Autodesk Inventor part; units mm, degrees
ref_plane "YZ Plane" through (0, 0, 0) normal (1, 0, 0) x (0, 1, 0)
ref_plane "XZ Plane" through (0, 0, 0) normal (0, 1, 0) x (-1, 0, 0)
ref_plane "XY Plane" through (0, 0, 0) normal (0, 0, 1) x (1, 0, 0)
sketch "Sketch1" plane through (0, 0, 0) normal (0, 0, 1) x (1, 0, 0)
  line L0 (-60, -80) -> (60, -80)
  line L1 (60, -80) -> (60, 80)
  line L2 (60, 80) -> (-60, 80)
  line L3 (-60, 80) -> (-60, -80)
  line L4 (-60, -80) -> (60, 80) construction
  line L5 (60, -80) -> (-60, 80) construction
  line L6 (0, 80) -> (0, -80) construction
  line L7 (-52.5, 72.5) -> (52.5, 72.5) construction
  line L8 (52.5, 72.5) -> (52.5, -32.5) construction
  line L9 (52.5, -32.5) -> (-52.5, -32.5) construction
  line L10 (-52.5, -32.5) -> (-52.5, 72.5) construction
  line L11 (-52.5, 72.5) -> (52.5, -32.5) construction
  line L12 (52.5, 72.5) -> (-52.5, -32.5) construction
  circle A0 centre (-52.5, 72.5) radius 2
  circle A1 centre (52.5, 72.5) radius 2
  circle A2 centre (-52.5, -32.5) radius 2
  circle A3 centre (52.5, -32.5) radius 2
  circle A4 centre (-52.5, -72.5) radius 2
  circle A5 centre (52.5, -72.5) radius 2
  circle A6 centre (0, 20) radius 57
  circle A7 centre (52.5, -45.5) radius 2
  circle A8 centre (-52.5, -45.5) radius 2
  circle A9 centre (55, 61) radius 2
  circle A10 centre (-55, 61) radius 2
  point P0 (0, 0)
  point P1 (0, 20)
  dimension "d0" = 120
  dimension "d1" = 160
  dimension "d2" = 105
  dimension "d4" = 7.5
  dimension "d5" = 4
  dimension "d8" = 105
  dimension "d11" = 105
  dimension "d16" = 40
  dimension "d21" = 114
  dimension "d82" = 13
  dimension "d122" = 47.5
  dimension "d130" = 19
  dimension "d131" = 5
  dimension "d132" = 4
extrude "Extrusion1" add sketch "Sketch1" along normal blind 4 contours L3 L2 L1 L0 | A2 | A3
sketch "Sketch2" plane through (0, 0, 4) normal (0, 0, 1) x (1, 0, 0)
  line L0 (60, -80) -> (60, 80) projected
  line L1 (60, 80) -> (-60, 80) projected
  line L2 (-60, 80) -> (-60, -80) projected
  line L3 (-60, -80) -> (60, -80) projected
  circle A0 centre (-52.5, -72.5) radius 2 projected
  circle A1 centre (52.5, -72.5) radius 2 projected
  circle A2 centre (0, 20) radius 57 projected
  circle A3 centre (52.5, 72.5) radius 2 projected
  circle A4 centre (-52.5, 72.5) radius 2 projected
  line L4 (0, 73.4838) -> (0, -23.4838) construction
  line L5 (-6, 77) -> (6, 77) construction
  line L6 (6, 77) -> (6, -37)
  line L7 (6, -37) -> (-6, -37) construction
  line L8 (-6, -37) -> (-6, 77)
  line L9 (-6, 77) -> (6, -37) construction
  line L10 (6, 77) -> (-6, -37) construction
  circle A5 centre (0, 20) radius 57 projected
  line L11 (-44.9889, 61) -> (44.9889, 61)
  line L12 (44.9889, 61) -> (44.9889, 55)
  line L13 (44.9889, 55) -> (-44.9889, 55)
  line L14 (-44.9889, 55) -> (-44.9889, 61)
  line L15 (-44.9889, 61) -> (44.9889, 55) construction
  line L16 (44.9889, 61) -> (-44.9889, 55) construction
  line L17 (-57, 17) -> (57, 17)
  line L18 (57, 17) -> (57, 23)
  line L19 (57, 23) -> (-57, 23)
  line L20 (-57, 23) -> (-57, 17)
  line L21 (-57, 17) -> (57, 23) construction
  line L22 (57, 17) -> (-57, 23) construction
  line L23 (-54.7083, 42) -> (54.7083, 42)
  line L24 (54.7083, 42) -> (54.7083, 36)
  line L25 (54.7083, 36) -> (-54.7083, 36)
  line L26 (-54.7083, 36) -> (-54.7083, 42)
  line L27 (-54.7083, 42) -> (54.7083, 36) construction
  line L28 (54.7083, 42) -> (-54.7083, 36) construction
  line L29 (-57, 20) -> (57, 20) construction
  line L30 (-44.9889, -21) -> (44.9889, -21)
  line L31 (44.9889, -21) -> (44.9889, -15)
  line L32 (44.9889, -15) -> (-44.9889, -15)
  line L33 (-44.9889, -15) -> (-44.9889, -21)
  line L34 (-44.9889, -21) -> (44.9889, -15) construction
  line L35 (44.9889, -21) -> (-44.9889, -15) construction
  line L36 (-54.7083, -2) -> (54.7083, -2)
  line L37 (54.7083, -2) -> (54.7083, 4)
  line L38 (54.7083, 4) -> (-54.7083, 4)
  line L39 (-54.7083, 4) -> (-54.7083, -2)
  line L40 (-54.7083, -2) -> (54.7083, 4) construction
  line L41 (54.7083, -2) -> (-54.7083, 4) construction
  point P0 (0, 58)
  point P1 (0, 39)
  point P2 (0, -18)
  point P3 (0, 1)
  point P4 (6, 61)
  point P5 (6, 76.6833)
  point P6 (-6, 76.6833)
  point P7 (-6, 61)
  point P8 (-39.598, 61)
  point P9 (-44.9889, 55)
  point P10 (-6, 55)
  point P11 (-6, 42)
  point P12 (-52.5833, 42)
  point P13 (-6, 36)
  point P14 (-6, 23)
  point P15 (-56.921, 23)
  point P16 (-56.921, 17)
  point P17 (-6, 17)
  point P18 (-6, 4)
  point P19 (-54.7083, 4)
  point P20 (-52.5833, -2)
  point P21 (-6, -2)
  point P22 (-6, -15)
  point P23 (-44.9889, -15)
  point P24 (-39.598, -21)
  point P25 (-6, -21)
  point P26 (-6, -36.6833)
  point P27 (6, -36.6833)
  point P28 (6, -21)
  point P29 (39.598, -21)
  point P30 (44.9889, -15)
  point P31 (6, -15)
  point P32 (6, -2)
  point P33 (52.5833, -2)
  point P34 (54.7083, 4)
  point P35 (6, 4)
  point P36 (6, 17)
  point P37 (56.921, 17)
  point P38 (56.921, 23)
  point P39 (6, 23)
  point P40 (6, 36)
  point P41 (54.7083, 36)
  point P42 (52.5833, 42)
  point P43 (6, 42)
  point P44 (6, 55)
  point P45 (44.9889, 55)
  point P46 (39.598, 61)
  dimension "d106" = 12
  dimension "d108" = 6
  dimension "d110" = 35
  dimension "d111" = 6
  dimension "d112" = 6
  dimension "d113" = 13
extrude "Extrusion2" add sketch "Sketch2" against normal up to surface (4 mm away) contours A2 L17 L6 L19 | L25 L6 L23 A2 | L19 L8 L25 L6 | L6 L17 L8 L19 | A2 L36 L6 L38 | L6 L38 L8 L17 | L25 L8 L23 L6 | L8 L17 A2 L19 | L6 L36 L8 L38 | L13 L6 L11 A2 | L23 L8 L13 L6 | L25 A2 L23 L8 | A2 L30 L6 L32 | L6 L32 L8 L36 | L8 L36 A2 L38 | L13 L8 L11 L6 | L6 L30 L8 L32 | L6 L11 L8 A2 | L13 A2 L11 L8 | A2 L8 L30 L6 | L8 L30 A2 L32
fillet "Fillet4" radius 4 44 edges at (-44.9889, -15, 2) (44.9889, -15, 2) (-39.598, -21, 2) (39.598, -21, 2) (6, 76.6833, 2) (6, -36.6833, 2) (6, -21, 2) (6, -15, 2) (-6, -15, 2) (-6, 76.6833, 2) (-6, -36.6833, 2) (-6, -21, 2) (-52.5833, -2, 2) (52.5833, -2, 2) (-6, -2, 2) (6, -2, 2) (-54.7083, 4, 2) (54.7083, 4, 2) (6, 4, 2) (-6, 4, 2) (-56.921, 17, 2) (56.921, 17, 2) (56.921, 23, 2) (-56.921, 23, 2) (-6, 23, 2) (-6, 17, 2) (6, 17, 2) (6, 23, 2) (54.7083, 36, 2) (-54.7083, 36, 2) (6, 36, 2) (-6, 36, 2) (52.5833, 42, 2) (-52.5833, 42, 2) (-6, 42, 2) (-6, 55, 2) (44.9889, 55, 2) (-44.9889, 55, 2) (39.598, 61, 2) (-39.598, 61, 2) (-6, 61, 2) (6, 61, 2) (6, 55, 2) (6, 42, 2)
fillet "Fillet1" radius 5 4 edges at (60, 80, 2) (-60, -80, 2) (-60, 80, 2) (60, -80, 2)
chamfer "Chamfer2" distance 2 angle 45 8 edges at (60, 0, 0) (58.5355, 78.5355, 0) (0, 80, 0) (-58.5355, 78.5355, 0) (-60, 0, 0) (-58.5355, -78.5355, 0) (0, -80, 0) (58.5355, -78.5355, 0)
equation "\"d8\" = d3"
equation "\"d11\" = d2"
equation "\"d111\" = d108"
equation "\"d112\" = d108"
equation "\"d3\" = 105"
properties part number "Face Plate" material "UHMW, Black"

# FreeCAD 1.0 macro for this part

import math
import FreeCAD as App
import Part
import Sketcher


def edges_at(feature, points):
    """Names of the edges that pass closest to the given points."""
    edges = feature.Shape.Edges
    near = lambda p: min(range(len(edges)), key=lambda i: edges[i].distToShape(Part.Vertex(*p))[0])
    return sorted({f"Edge{near(p) + 1}" for p in points})

doc = App.newDocument("Part")
body = doc.addObject("PartDesign::Body", "Body")

sketch1 = body.newObject("Sketcher::SketchObject", "Sketch")
sketch1.AttachmentSupport = (doc.getObject("XY_Plane"), [""])
sketch1.MapMode = "FlatFace"
sketch1.addGeometry([
    Part.LineSegment(App.Vector(-60, 80, 0), App.Vector(-60, -80, 0)),
    Part.LineSegment(App.Vector(-60, -80, 0), App.Vector(60, -80, 0)),
    Part.LineSegment(App.Vector(60, -80, 0), App.Vector(60, 80, 0)),
    Part.LineSegment(App.Vector(60, 80, 0), App.Vector(-60, 80, 0)),
    Part.Circle(App.Vector(-52.5, -72.5, 0), App.Vector(0, 0, 1), 2),
    Part.Circle(App.Vector(-52.5, -45.5, 0), App.Vector(0, 0, 1), 2),
    Part.Circle(App.Vector(52.5, -72.5, 0), App.Vector(0, 0, 1), 2),
    Part.Circle(App.Vector(52.5, -45.5, 0), App.Vector(0, 0, 1), 2),
    Part.Circle(App.Vector(-55, 61, 0), App.Vector(0, 0, 1), 2),
    Part.Circle(App.Vector(-52.5, 72.5, 0), App.Vector(0, 0, 1), 2),
    Part.Circle(App.Vector(0, 20, 0), App.Vector(0, 0, 1), 57),
    Part.Circle(App.Vector(55, 61, 0), App.Vector(0, 0, 1), 2),
    Part.Circle(App.Vector(52.5, 72.5, 0), App.Vector(0, 0, 1), 2),
], False)
sketch1.addConstraint([
    Sketcher.Constraint("Coincident", 0, 2, 1, 1),
    Sketcher.Constraint("Coincident", 1, 2, 2, 1),
    Sketcher.Constraint("Coincident", 2, 2, 3, 1),
    Sketcher.Constraint("Coincident", 3, 2, 0, 1),
    Sketcher.Constraint("Vertical", 0),
    Sketcher.Constraint("Horizontal", 1),
    Sketcher.Constraint("Vertical", 2),
    Sketcher.Constraint("Horizontal", 3),
    Sketcher.Constraint("Equal", 4, 5),
    Sketcher.Constraint("Equal", 5, 6),
    Sketcher.Constraint("Equal", 6, 7),
    Sketcher.Constraint("Equal", 7, 8),
    Sketcher.Constraint("Equal", 8, 9),
    Sketcher.Constraint("Equal", 9, 11),
    Sketcher.Constraint("Equal", 11, 12),
    Sketcher.Constraint("Symmetric", 6, 3, 9, 3, -1, 1),
    Sketcher.Constraint("Symmetric", 4, 3, 12, 3, -1, 1),
    Sketcher.Constraint("Symmetric", 0, 2, 2, 2, -1, 1),
    Sketcher.Constraint("Symmetric", 4, 3, 6, 3, -2),
    Sketcher.Constraint("Symmetric", 5, 3, 7, 3, -2),
    Sketcher.Constraint("Symmetric", 8, 3, 11, 3, -2),
    Sketcher.Constraint("PointOnObject", 10, 3, -2),
    Sketcher.Constraint("Vertical", 4, 3, 5, 3),
    Sketcher.Constraint("Diameter", 4, 4.0),
    Sketcher.Constraint("Diameter", 10, 114.0),
    Sketcher.Constraint("DistanceX", 1, 1, 1, 2, 120.0),
    Sketcher.Constraint("DistanceY", 0, 2, 0, 1, 160.0),
    Sketcher.Constraint("DistanceX", 4, 3, 6, 3, 105.0),
    Sketcher.Constraint("DistanceX", 11, 3, 2, 2, 5.0),
    Sketcher.Constraint("DistanceY", 11, 3, 2, 2, 19.0),
    Sketcher.Constraint("DistanceY", 0, 2, 4, 3, 7.5),
    Sketcher.Constraint("DistanceY", -1, 1, 10, 3, 20.0),
    Sketcher.Constraint("DistanceY", 4, 3, 5, 3, 27.0),
])
pad1 = body.newObject("PartDesign::Pad", "Pad")
pad1.Profile = sketch1
pad1.Length = 4

sketch2 = body.newObject("Sketcher::SketchObject", "Sketch001")
sketch2.AttachmentSupport = (doc.getObject("XY_Plane"), [""])
sketch2.MapMode = "FlatFace"
sketch2.AttachmentOffset = App.Placement(App.Vector(0, 0, 4), App.Rotation())
sketch2.addGeometry([
    Part.ArcOfCircle(Part.Circle(App.Vector(0, 20, 0), App.Vector(0, 0, 1), 57), math.radians(-3.016961), math.radians(3.016961)),
    Part.LineSegment(App.Vector(56.920998, 23, 0), App.Vector(6, 23, 0)),
    Part.LineSegment(App.Vector(6, 23, 0), App.Vector(6, 36, 0)),
    Part.LineSegment(App.Vector(6, 36, 0), App.Vector(54.7083, 36, 0)),
    Part.ArcOfCircle(Part.Circle(App.Vector(0, 20, 0), App.Vector(0, 0, 1), 57), math.radians(16.302097), math.radians(22.703656)),
    Part.LineSegment(App.Vector(52.583267, 42, 0), App.Vector(6, 42, 0)),
    Part.LineSegment(App.Vector(6, 42, 0), App.Vector(6, 55, 0)),
    Part.LineSegment(App.Vector(6, 55, 0), App.Vector(44.9889, 55, 0)),
    Part.ArcOfCircle(Part.Circle(App.Vector(0, 20, 0), App.Vector(0, 0, 1), 57), math.radians(37.881834), math.radians(45.996573)),
    Part.LineSegment(App.Vector(39.59798, 61, 0), App.Vector(6, 61, 0)),
    Part.LineSegment(App.Vector(6, 61, 0), App.Vector(6, 76.683331, 0)),
    Part.ArcOfCircle(Part.Circle(App.Vector(0, 20, 0), App.Vector(0, 0, 1), 57), math.radians(83.957672), math.radians(96.042328)),
    Part.LineSegment(App.Vector(-6, 76.683331, 0), App.Vector(-6, 61, 0)),
    Part.LineSegment(App.Vector(-6, 61, 0), App.Vector(-39.59798, 61, 0)),
    Part.ArcOfCircle(Part.Circle(App.Vector(0, 20, 0), App.Vector(0, 0, 1), 57), math.radians(134.003427), math.radians(142.118166)),
    Part.LineSegment(App.Vector(-44.9889, 55, 0), App.Vector(-6, 55, 0)),
    Part.LineSegment(App.Vector(-6, 55, 0), App.Vector(-6, 42, 0)),
    Part.LineSegment(App.Vector(-6, 42, 0), App.Vector(-52.583267, 42, 0)),
    Part.ArcOfCircle(Part.Circle(App.Vector(0, 20, 0), App.Vector(0, 0, 1), 57), math.radians(157.296344), math.radians(163.697903)),
    Part.LineSegment(App.Vector(-54.7083, 36, 0), App.Vector(-6, 36, 0)),
    Part.LineSegment(App.Vector(-6, 36, 0), App.Vector(-6, 23, 0)),
    Part.LineSegment(App.Vector(-6, 23, 0), App.Vector(-56.920998, 23, 0)),
    Part.ArcOfCircle(Part.Circle(App.Vector(0, 20, 0), App.Vector(0, 0, 1), 57), math.radians(176.983039), math.radians(183.016961)),
    Part.LineSegment(App.Vector(-56.920998, 17, 0), App.Vector(-6, 17, 0)),
    Part.LineSegment(App.Vector(-6, 17, 0), App.Vector(-6, 4, 0)),
    Part.LineSegment(App.Vector(-6, 4, 0), App.Vector(-54.7083, 4, 0)),
    Part.ArcOfCircle(Part.Circle(App.Vector(0, 20, 0), App.Vector(0, 0, 1), 57), math.radians(-163.697903), math.radians(-157.296344)),
    Part.LineSegment(App.Vector(-52.583267, -2, 0), App.Vector(-6, -2, 0)),
    Part.LineSegment(App.Vector(-6, -2, 0), App.Vector(-6, -15, 0)),
    Part.LineSegment(App.Vector(-6, -15, 0), App.Vector(-44.9889, -15, 0)),
    Part.ArcOfCircle(Part.Circle(App.Vector(0, 20, 0), App.Vector(0, 0, 1), 57), math.radians(-142.118166), math.radians(-134.003427)),
    Part.LineSegment(App.Vector(-39.59798, -21, 0), App.Vector(-6, -21, 0)),
    Part.LineSegment(App.Vector(-6, -21, 0), App.Vector(-6, -36.683331, 0)),
    Part.ArcOfCircle(Part.Circle(App.Vector(0, 20, 0), App.Vector(0, 0, 1), 57), math.radians(-96.042328), math.radians(-83.957672)),
    Part.LineSegment(App.Vector(6, -36.683331, 0), App.Vector(6, -21, 0)),
    Part.LineSegment(App.Vector(6, -21, 0), App.Vector(39.59798, -21, 0)),
    Part.ArcOfCircle(Part.Circle(App.Vector(0, 20, 0), App.Vector(0, 0, 1), 57), math.radians(-45.996573), math.radians(-37.881834)),
    Part.LineSegment(App.Vector(44.9889, -15, 0), App.Vector(6, -15, 0)),
    Part.LineSegment(App.Vector(6, -15, 0), App.Vector(6, -2, 0)),
    Part.LineSegment(App.Vector(6, -2, 0), App.Vector(52.583267, -2, 0)),
    Part.ArcOfCircle(Part.Circle(App.Vector(0, 20, 0), App.Vector(0, 0, 1), 57), math.radians(-22.703656), math.radians(-16.302097)),
    Part.LineSegment(App.Vector(54.7083, 4, 0), App.Vector(6, 4, 0)),
    Part.LineSegment(App.Vector(6, 4, 0), App.Vector(6, 17, 0)),
    Part.LineSegment(App.Vector(6, 17, 0), App.Vector(56.920998, 17, 0)),
], False)
sketch2.addConstraint([
    Sketcher.Constraint("Coincident", 0, 2, 1, 1),
    Sketcher.Constraint("Coincident", 1, 2, 2, 1),
    Sketcher.Constraint("Coincident", 2, 2, 3, 1),
    Sketcher.Constraint("Coincident", 3, 2, 4, 1),
    Sketcher.Constraint("Coincident", 4, 2, 5, 1),
    Sketcher.Constraint("Coincident", 5, 2, 6, 1),
    Sketcher.Constraint("Coincident", 6, 2, 7, 1),
    Sketcher.Constraint("Coincident", 7, 2, 8, 1),
    Sketcher.Constraint("Coincident", 8, 2, 9, 1),
    Sketcher.Constraint("Coincident", 9, 2, 10, 1),
    Sketcher.Constraint("Coincident", 10, 2, 11, 1),
    Sketcher.Constraint("Coincident", 11, 2, 12, 1),
    Sketcher.Constraint("Coincident", 12, 2, 13, 1),
    Sketcher.Constraint("Coincident", 13, 2, 14, 1),
    Sketcher.Constraint("Coincident", 14, 2, 15, 1),
    Sketcher.Constraint("Coincident", 15, 2, 16, 1),
    Sketcher.Constraint("Coincident", 16, 2, 17, 1),
    Sketcher.Constraint("Coincident", 17, 2, 18, 1),
    Sketcher.Constraint("Coincident", 18, 2, 19, 1),
    Sketcher.Constraint("Coincident", 19, 2, 20, 1),
    Sketcher.Constraint("Coincident", 20, 2, 21, 1),
    Sketcher.Constraint("Coincident", 21, 2, 22, 1),
    Sketcher.Constraint("Coincident", 22, 2, 23, 1),
    Sketcher.Constraint("Coincident", 23, 2, 24, 1),
    Sketcher.Constraint("Coincident", 24, 2, 25, 1),
    Sketcher.Constraint("Coincident", 25, 2, 26, 1),
    Sketcher.Constraint("Coincident", 26, 2, 27, 1),
    Sketcher.Constraint("Coincident", 27, 2, 28, 1),
    Sketcher.Constraint("Coincident", 28, 2, 29, 1),
    Sketcher.Constraint("Coincident", 29, 2, 30, 1),
    Sketcher.Constraint("Coincident", 30, 2, 31, 1),
    Sketcher.Constraint("Coincident", 31, 2, 32, 1),
    Sketcher.Constraint("Coincident", 32, 2, 33, 1),
    Sketcher.Constraint("Coincident", 33, 2, 34, 1),
    Sketcher.Constraint("Coincident", 34, 2, 35, 1),
    Sketcher.Constraint("Coincident", 35, 2, 36, 1),
    Sketcher.Constraint("Coincident", 36, 2, 37, 1),
    Sketcher.Constraint("Coincident", 37, 2, 38, 1),
    Sketcher.Constraint("Coincident", 38, 2, 39, 1),
    Sketcher.Constraint("Coincident", 39, 2, 40, 1),
    Sketcher.Constraint("Coincident", 40, 2, 41, 1),
    Sketcher.Constraint("Coincident", 41, 2, 42, 1),
    Sketcher.Constraint("Coincident", 42, 2, 43, 1),
    Sketcher.Constraint("Coincident", 43, 2, 0, 1),
    Sketcher.Constraint("Horizontal", 1),
    Sketcher.Constraint("Vertical", 2),
    Sketcher.Constraint("Horizontal", 3),
    Sketcher.Constraint("Horizontal", 5),
    Sketcher.Constraint("Vertical", 6),
    Sketcher.Constraint("Horizontal", 7),
    Sketcher.Constraint("Horizontal", 9),
    Sketcher.Constraint("Vertical", 10),
    Sketcher.Constraint("Vertical", 12),
    Sketcher.Constraint("Horizontal", 13),
    Sketcher.Constraint("Horizontal", 15),
    Sketcher.Constraint("Vertical", 16),
    Sketcher.Constraint("Horizontal", 17),
    Sketcher.Constraint("Horizontal", 19),
    Sketcher.Constraint("Vertical", 20),
    Sketcher.Constraint("Horizontal", 21),
    Sketcher.Constraint("Horizontal", 23),
    Sketcher.Constraint("Vertical", 24),
    Sketcher.Constraint("Horizontal", 25),
    Sketcher.Constraint("Horizontal", 27),
    Sketcher.Constraint("Vertical", 28),
    Sketcher.Constraint("Horizontal", 29),
    Sketcher.Constraint("Horizontal", 31),
    Sketcher.Constraint("Vertical", 32),
    Sketcher.Constraint("Vertical", 34),
    Sketcher.Constraint("Horizontal", 35),
    Sketcher.Constraint("Horizontal", 37),
    Sketcher.Constraint("Vertical", 38),
    Sketcher.Constraint("Horizontal", 39),
    Sketcher.Constraint("Horizontal", 41),
    Sketcher.Constraint("Vertical", 42),
    Sketcher.Constraint("Horizontal", 43),
    Sketcher.Constraint("Coincident", 4, 3, 0, 3),
    Sketcher.Constraint("Coincident", 8, 3, 0, 3),
    Sketcher.Constraint("Coincident", 11, 3, 0, 3),
    Sketcher.Constraint("Coincident", 14, 3, 0, 3),
    Sketcher.Constraint("Coincident", 18, 3, 0, 3),
    Sketcher.Constraint("Coincident", 22, 3, 0, 3),
    Sketcher.Constraint("Coincident", 26, 3, 0, 3),
    Sketcher.Constraint("Coincident", 30, 3, 0, 3),
    Sketcher.Constraint("Coincident", 33, 3, 0, 3),
    Sketcher.Constraint("Coincident", 36, 3, 0, 3),
    Sketcher.Constraint("Coincident", 40, 3, 0, 3),
    Sketcher.Constraint("Equal", 0, 4),
    Sketcher.Constraint("Equal", 4, 8),
    Sketcher.Constraint("Equal", 8, 11),
    Sketcher.Constraint("Equal", 11, 14),
    Sketcher.Constraint("Equal", 14, 18),
    Sketcher.Constraint("Equal", 18, 22),
    Sketcher.Constraint("Equal", 22, 26),
    Sketcher.Constraint("Equal", 26, 30),
    Sketcher.Constraint("Equal", 30, 33),
    Sketcher.Constraint("Equal", 33, 36),
    Sketcher.Constraint("Equal", 36, 40),
    Sketcher.Constraint("Symmetric", 10, 2, 11, 2, -2),
    Sketcher.Constraint("Symmetric", 6, 2, 15, 2, -2),
    Sketcher.Constraint("Symmetric", 2, 2, 19, 2, -2),
    Sketcher.Constraint("Symmetric", 31, 2, 34, 2, -2),
    Sketcher.Constraint("Symmetric", 28, 2, 37, 2, -2),
    Sketcher.Constraint("Symmetric", 24, 2, 41, 2, -2),
    Sketcher.Constraint("Horizontal", 9, 2, 12, 2),
    Sketcher.Constraint("Horizontal", 5, 2, 16, 2),
    Sketcher.Constraint("Horizontal", 1, 2, 20, 2),
    Sketcher.Constraint("Horizontal", 27, 2, 38, 2),
    Sketcher.Constraint("Horizontal", 23, 2, 42, 2),
    Sketcher.Constraint("Vertical", 2, 2, 5, 2),
    Sketcher.Constraint("Vertical", 6, 2, 9, 2),
    Sketcher.Constraint("Vertical", 21, 2, 22, 2),
    Sketcher.Constraint("Vertical", 20, 2, 23, 2),
    Sketcher.Constraint("Vertical", 18, 2, 25, 2),
    Sketcher.Constraint("Vertical", 17, 2, 26, 2),
    Sketcher.Constraint("Vertical", 24, 2, 27, 2),
    Sketcher.Constraint("Vertical", 14, 2, 29, 2),
    Sketcher.Constraint("Vertical", 13, 2, 30, 2),
    Sketcher.Constraint("Vertical", 28, 2, 31, 2),
    Sketcher.Constraint("Equal", 2, 6),
    Sketcher.Constraint("DistanceY", 2, 1, 2, 2, 13.0),
    Sketcher.Constraint("DistanceX", -1, 1, 1, 2, 6.0),
    Sketcher.Constraint("Radius", 0, 57.0),
    Sketcher.Constraint("DistanceY", 3, 2, 4, 2, 6.0),
    Sketcher.Constraint("DistanceY", 0, 3, 6, 2, 35.0),
    Sketcher.Constraint("DistanceY", 7, 2, 8, 2, 6.0),
    Sketcher.Constraint("DistanceY", -1, 1, 0, 3, 20.0),
])
pad2 = body.newObject("PartDesign::Pad", "Pad001")
pad2.Profile = sketch2
pad2.Length = 4
pad2.Reversed = True
doc.recompute()

fillet = body.newObject("PartDesign::Fillet", "Fillet")
fillet.Base = (pad2, edges_at(pad2, [
    (-44.989, -15, 2),
    (44.989, -15, 2),
    (-39.598, -21, 2),
    (39.598, -21, 2),
    (6, 76.683, 2),
    (6, -36.683, 2),
    (6, -21, 2),
    (6, -15, 2),
    (-6, -15, 2),
    (-6, 76.683, 2),
    (-6, -36.683, 2),
    (-6, -21, 2),
    (-52.583, -2, 2),
    (52.583, -2, 2),
    (-6, -2, 2),
    (6, -2, 2),
    (-54.708, 4, 2),
    (54.708, 4, 2),
    (6, 4, 2),
    (-6, 4, 2),
    (-56.921, 17, 2),
    (56.921, 17, 2),
    (56.921, 23, 2),
    (-56.921, 23, 2),
    (-6, 23, 2),
    (-6, 17, 2),
    (6, 17, 2),
    (6, 23, 2),
    (54.708, 36, 2),
    (-54.708, 36, 2),
    (6, 36, 2),
    (-6, 36, 2),
    (52.583, 42, 2),
    (-52.583, 42, 2),
    (-6, 42, 2),
    (-6, 55, 2),
    (44.989, 55, 2),
    (-44.989, 55, 2),
    (39.598, 61, 2),
    (-39.598, 61, 2),
    (-6, 61, 2),
    (6, 61, 2),
    (6, 55, 2),
    (6, 42, 2),
]))
fillet.Radius = 4
doc.recompute()

fillet2 = body.newObject("PartDesign::Fillet", "Fillet001")
fillet2.Base = (fillet, edges_at(fillet, [
    (60, 80, 2),
    (-60, -80, 2),
    (-60, 80, 2),
    (60, -80, 2),
]))
fillet2.Radius = 5
doc.recompute()

chamfer = body.newObject("PartDesign::Chamfer", "Chamfer")
chamfer.Base = (fillet2, edges_at(fillet2, [
    (60, 0, 0),
    (58.535, 78.535, 0),
    (0, 80, 0),
    (-58.535, 78.535, 0),
    (-60, 0, 0),
    (-58.535, -78.535, 0),
    (0, -80, 0),
    (58.535, -78.535, 0),
]))
chamfer.Size = 2

doc.recompute()
